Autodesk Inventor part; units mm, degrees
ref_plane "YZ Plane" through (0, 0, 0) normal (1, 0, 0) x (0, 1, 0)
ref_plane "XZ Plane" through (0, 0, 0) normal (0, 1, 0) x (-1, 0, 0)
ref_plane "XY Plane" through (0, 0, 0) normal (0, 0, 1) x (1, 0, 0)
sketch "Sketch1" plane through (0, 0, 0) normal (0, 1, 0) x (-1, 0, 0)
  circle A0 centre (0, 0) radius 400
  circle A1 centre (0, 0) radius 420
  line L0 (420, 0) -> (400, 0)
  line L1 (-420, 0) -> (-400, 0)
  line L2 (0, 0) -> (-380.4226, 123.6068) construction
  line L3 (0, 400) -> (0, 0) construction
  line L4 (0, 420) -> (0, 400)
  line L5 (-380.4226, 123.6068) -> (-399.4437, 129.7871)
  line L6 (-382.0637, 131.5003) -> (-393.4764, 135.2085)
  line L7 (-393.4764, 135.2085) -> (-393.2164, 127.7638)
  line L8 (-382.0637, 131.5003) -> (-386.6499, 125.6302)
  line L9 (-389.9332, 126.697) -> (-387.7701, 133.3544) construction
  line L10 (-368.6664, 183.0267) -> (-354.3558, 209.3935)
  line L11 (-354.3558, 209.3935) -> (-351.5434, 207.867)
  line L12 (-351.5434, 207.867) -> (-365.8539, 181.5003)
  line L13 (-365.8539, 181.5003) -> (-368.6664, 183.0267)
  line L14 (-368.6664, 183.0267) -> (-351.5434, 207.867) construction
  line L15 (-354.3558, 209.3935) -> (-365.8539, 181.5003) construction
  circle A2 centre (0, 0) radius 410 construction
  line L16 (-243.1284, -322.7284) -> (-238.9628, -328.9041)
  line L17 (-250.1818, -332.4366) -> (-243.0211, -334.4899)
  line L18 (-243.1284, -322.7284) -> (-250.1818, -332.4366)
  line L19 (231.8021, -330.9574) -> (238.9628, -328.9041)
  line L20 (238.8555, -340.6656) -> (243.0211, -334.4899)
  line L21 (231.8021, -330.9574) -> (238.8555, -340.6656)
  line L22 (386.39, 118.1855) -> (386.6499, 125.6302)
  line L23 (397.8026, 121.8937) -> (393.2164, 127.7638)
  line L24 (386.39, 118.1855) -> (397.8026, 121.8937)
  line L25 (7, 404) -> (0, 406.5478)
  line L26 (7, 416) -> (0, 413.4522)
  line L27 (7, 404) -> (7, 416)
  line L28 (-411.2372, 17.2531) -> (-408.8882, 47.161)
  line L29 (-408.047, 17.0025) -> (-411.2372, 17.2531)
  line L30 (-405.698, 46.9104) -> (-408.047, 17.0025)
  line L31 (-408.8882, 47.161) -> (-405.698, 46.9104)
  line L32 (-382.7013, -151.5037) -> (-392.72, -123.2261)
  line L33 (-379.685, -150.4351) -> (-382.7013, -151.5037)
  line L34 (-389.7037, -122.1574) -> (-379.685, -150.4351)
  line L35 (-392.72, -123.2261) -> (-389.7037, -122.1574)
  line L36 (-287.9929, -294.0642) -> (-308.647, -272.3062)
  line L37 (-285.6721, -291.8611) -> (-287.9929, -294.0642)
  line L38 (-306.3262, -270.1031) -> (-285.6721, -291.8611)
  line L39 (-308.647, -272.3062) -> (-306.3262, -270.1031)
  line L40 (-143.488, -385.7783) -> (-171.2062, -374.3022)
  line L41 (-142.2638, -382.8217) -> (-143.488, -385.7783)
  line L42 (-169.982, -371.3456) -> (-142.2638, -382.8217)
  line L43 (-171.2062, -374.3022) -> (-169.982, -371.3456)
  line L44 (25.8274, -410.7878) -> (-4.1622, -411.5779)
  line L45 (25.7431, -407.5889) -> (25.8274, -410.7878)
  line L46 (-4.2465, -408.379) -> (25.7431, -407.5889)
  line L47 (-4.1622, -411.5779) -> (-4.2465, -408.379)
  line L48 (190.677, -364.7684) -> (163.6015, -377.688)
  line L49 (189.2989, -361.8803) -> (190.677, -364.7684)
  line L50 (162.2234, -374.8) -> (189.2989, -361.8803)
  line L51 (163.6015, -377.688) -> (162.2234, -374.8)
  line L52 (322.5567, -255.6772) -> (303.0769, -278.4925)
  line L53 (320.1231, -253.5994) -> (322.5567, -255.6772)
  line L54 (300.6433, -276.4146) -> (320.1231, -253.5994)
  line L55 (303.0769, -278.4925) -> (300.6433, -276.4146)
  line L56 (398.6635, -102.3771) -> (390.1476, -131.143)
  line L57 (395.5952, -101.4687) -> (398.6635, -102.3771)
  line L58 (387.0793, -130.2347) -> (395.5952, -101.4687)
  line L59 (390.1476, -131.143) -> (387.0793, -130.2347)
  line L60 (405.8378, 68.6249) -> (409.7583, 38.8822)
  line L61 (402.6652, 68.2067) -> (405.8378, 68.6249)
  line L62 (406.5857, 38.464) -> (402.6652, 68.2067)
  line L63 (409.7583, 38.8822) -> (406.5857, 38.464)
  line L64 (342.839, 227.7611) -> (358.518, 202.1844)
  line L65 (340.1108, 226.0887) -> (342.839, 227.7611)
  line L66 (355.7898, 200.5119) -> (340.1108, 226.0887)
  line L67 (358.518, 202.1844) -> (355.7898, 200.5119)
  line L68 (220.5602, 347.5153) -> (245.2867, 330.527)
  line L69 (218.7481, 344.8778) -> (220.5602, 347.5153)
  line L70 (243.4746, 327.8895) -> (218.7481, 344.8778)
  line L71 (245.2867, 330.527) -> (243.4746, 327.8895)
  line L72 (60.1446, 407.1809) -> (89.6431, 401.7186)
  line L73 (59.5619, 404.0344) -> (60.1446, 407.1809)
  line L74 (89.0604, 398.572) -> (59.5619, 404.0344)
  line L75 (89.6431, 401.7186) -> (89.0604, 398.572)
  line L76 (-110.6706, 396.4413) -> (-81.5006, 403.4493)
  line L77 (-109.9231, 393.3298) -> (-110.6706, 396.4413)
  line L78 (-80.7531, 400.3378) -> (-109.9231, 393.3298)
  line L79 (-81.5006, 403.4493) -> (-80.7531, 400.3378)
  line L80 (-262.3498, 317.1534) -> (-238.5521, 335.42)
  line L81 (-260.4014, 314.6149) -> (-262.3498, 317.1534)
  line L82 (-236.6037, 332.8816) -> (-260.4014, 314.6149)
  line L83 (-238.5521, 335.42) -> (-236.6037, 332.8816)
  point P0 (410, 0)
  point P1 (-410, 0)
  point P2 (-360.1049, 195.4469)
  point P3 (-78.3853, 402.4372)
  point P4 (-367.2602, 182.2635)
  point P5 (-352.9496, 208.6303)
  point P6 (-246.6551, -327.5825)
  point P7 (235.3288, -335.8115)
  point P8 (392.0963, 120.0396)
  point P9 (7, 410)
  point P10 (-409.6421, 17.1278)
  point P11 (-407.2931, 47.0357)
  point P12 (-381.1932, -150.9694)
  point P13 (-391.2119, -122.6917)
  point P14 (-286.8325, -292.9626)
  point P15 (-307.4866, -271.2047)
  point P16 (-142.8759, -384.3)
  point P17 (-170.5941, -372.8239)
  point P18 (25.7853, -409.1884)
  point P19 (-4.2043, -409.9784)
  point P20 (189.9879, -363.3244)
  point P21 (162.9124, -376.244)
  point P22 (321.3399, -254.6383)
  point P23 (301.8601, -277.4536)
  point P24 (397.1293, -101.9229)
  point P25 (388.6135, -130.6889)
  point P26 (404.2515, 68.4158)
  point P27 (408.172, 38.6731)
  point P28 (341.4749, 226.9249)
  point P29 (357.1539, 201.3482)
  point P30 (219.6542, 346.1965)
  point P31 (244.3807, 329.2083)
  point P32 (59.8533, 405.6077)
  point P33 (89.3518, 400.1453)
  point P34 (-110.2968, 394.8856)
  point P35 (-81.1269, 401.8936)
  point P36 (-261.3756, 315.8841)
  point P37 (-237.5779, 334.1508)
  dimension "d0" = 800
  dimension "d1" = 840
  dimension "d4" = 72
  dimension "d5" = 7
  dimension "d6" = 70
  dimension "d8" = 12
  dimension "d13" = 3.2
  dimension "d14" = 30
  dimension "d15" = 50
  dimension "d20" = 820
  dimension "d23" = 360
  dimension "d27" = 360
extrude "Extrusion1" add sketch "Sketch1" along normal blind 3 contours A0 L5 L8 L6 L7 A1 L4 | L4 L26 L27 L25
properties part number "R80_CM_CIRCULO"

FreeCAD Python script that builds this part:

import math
import FreeCAD as App
import Part
import Sketcher
from FreeCAD import Vector
Q = App.Units.Quantity

doc = App.newDocument("Part")
body = doc.addObject("PartDesign::Body", "Body")

# Sketch on XZ plane
sketch1 = body.newObject("Sketcher::SketchObject", "Sketch")
sketch1.AttachmentSupport = (doc.getObject("XZ_Plane"), [""])
sketch1.MapMode = "FlatFace"
sketch1.addGeometry([
    Part.ArcOfCircle(Part.Circle(Vector(0, 0, 0), Vector(0, 0, 1), 400), math.radians(18), math.radians(90)),  # 0
    Part.LineSegment(Vector(0, 400, 0), Vector(0, 406.5, 0)),  # 1
    Part.LineSegment(Vector(0, 406.5, 0), Vector(-7, 404, 0)),  # 2
    Part.LineSegment(Vector(-7, 404, 0), Vector(-7, 416, 0)),  # 3
    Part.LineSegment(Vector(-7, 416, 0), Vector(0, 413.5, 0)),  # 4
    Part.LineSegment(Vector(0, 413.5, 0), Vector(0, 420, 0)),  # 5
    Part.ArcOfCircle(Part.Circle(Vector(0, 0, 0), Vector(0, 0, 1), 420), math.radians(18), math.radians(90)),  # 6
    Part.LineSegment(Vector(399.4, 129.8, 0), Vector(393.2, 127.8, 0)),  # 7
    Part.LineSegment(Vector(393.2, 127.8, 0), Vector(393.5, 135.2, 0)),  # 8
    Part.LineSegment(Vector(393.5, 135.2, 0), Vector(382.1, 131.5, 0)),  # 9
    Part.LineSegment(Vector(382.1, 131.5, 0), Vector(386.6, 125.6, 0)),  # 10
    Part.LineSegment(Vector(386.6, 125.6, 0), Vector(380.4, 123.6, 0)),  # 11
    Part.LineSegment(Vector(365.9, 181.5, 0), Vector(368.7, 183, 0)),  # 12
    Part.LineSegment(Vector(368.7, 183, 0), Vector(354.4, 209.4, 0)),  # 13
    Part.LineSegment(Vector(354.4, 209.4, 0), Vector(351.5, 207.9, 0)),  # 14
    Part.LineSegment(Vector(351.5, 207.9, 0), Vector(365.9, 181.5, 0)),  # 15
    Part.LineSegment(Vector(260.4, 314.6, 0), Vector(262.3, 317.2, 0)),  # 16
    Part.LineSegment(Vector(262.3, 317.2, 0), Vector(238.6, 335.4, 0)),  # 17
    Part.LineSegment(Vector(238.6, 335.4, 0), Vector(236.6, 332.9, 0)),  # 18
    Part.LineSegment(Vector(236.6, 332.9, 0), Vector(260.4, 314.6, 0)),  # 19
    Part.LineSegment(Vector(109.9, 393.3, 0), Vector(110.7, 396.4, 0)),  # 20
    Part.LineSegment(Vector(110.7, 396.4, 0), Vector(81.5, 403.4, 0)),  # 21
    Part.LineSegment(Vector(81.5, 403.4, 0), Vector(80.8, 400.3, 0)),  # 22
    Part.LineSegment(Vector(80.8, 400.3, 0), Vector(109.9, 393.3, 0)),  # 23
], False)
sketch1.addConstraint([
    Sketcher.Constraint("Coincident", 0, 2, 1, 1),
    Sketcher.Constraint("Coincident", 1, 2, 2, 1),
    Sketcher.Constraint("Coincident", 2, 2, 3, 1),
    Sketcher.Constraint("Coincident", 3, 2, 4, 1),
    Sketcher.Constraint("Coincident", 4, 2, 5, 1),
    Sketcher.Constraint("Coincident", 5, 2, 6, 2),
    Sketcher.Constraint("Coincident", 6, 1, 7, 1),
    Sketcher.Constraint("Coincident", 7, 2, 8, 1),
    Sketcher.Constraint("Coincident", 8, 2, 9, 1),
    Sketcher.Constraint("Coincident", 9, 2, 10, 1),
    Sketcher.Constraint("Coincident", 10, 2, 11, 1),
    Sketcher.Constraint("Coincident", 11, 2, 0, 1),
    Sketcher.Constraint("Coincident", 12, 2, 13, 1),
    Sketcher.Constraint("Coincident", 13, 2, 14, 1),
    Sketcher.Constraint("Coincident", 14, 2, 15, 1),
    Sketcher.Constraint("Coincident", 15, 2, 12, 1),
    Sketcher.Constraint("Coincident", 16, 2, 17, 1),
    Sketcher.Constraint("Coincident", 17, 2, 18, 1),
    Sketcher.Constraint("Coincident", 18, 2, 19, 1),
    Sketcher.Constraint("Coincident", 19, 2, 16, 1),
    Sketcher.Constraint("Coincident", 20, 2, 21, 1),
    Sketcher.Constraint("Coincident", 21, 2, 22, 1),
    Sketcher.Constraint("Coincident", 22, 2, 23, 1),
    Sketcher.Constraint("Coincident", 23, 2, 20, 1),
    Sketcher.Constraint("Vertical", 1),
    Sketcher.Constraint("Vertical", 3),
    Sketcher.Constraint("Vertical", 5),
    Sketcher.Constraint("Coincident", 0, 3, -1, 1),
    Sketcher.Constraint("Coincident", 6, 3, -1, 1),
    Sketcher.Constraint("PointOnObject", 1, 2, -2),
    Sketcher.Constraint("PointOnObject", 4, 2, -2),
    Sketcher.Constraint("Parallel", 7, 9),
    Sketcher.Constraint("Parallel", 9, 11),
    Sketcher.Constraint("Perpendicular", 12, 13),
    Sketcher.Constraint("Perpendicular", 13, 14),
    Sketcher.Constraint("Perpendicular", 14, 15),
    Sketcher.Constraint("Perpendicular", 16, 17),
    Sketcher.Constraint("Perpendicular", 17, 18),
    Sketcher.Constraint("Perpendicular", 18, 19),
    Sketcher.Constraint("Perpendicular", 20, 21),
    Sketcher.Constraint("Perpendicular", 21, 22),
    Sketcher.Constraint("Perpendicular", 22, 23),
    Sketcher.Constraint("Equal", 1, 5),
    Sketcher.Constraint("Equal", 2, 4),
    Sketcher.Constraint("Equal", 4, 8),
    Sketcher.Constraint("Equal", 8, 10),
    Sketcher.Constraint("Equal", 7, 11),
    Sketcher.Constraint("Equal", 14, 16),
    Sketcher.Constraint("Equal", 15, 17),
    Sketcher.Constraint("Equal", 18, 20),
    Sketcher.Constraint("Equal", 19, 21),
    Sketcher.Constraint("Radius", 0, 400.0),
    Sketcher.Constraint("Radius", 6, 420.0),
    Sketcher.Constraint("DistanceY", 3, 1, 3, 2, 12.0),
    Sketcher.Constraint("Distance", 9, 12.0),
    Sketcher.Constraint("Distance", 13, 30.0),
    Sketcher.Constraint("DistanceX", 2, 2, -1, 1, 7.0),
    Sketcher.Constraint("DistanceY", 9, 2, 15, 2, 50.0),
    Sketcher.Constraint("Distance", 12, 3.2),
    Sketcher.Constraint("Angle", 2, Q("-160 deg")),
    Sketcher.Constraint("Angle", 7, Q("-162 deg")),
    Sketcher.Constraint("Angle", 8, Q("87.9998 deg")),
    Sketcher.Constraint("Angle", 10, Q("-52.0002 deg")),
    Sketcher.Constraint("Angle", 12, Q("28.4896 deg")),
    Sketcher.Constraint("Angle", 17, Q("142.491 deg")),
    Sketcher.Constraint("Angle", 21, Q("166.491 deg")),
    Sketcher.Constraint("DistanceX", -1, 1, 10, 2, 386.65),
    Sketcher.Constraint("DistanceY", -1, 1, 17, 2, 335.42),
    Sketcher.Constraint("DistanceX", 12, 2, 8, 2, 24.81),
    Sketcher.Constraint("DistanceY", 22, 2, 1, 2, 6.21),
    Sketcher.Constraint("DistanceX", -1, 1, 17, 2, 238.552),
    Sketcher.Constraint("DistanceX", -1, 1, 22, 2, 80.753),
])
pad1 = body.newObject("PartDesign::Pad", "Pad")
pad1.Profile = sketch1
pad1.Length = 3
pad1.Reversed = True

doc.recompute()
